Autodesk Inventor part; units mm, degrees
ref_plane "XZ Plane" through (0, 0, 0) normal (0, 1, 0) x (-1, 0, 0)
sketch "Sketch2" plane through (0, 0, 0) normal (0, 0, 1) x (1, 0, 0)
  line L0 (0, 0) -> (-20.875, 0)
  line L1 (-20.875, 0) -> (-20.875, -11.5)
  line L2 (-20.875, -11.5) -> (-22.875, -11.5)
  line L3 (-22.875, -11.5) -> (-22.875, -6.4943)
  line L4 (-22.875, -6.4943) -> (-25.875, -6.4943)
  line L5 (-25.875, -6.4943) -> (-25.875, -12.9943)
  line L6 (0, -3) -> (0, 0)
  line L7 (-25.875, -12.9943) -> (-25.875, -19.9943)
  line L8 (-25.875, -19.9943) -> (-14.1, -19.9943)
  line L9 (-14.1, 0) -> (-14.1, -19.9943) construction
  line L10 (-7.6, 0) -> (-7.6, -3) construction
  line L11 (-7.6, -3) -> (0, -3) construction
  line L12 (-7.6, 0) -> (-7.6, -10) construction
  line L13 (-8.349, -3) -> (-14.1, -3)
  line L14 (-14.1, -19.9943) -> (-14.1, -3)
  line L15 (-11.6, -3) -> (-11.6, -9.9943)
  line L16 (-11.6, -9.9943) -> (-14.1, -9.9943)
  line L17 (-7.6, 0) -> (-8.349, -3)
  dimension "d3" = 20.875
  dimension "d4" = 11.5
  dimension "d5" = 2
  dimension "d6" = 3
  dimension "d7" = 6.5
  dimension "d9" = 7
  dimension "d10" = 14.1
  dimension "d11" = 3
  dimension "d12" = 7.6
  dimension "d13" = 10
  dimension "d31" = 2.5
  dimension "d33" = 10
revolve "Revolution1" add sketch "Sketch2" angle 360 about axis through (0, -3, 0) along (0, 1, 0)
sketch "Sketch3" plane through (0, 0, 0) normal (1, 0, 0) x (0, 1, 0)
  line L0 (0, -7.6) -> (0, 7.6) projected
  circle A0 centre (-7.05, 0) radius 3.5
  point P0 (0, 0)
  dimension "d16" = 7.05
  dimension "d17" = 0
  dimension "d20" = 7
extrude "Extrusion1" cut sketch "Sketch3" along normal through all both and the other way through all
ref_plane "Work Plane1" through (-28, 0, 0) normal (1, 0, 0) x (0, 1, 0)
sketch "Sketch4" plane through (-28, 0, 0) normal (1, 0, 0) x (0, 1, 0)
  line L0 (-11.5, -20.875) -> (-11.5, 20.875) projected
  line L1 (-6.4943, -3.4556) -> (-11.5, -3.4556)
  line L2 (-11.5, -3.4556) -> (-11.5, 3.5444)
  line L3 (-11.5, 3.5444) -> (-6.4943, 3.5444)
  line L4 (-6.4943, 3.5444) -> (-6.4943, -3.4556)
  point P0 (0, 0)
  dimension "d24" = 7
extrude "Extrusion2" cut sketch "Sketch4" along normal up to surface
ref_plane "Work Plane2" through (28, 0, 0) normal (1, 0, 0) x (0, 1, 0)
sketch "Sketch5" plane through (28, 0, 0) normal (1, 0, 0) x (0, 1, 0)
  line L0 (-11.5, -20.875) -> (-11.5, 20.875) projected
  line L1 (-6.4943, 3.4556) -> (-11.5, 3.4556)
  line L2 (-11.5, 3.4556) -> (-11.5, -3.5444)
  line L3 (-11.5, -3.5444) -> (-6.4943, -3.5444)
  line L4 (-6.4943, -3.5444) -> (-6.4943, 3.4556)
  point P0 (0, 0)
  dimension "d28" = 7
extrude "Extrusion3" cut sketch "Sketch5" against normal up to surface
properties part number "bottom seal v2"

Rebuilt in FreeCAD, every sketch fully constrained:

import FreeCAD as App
import Part
import Sketcher
Q = App.Units.Quantity

doc = App.newDocument("Part")
params = doc.addObject("Spreadsheet::Sheet", "Params")
for row, (alias, value) in enumerate([
    ("sketch1_width", "2 mm"),
    ("sketch1_width2", "3 mm"),
    ("sketch1_height", "10 mm"),
    ("sketch1_width3", "2.5 mm"),
    ("sketch1_height2", "11.5 mm"),
    ("revolution_angle", "360 deg"),
    ("sketch2_diameter", "7 mm"),
    ("sketch3_height", "7 mm"),
    ("pocket2_length", "5.4013 mm"),
    ("sketch4_height", "7 mm"),
    ("pocket3_length", "5.4013 mm"),
], start=1):
    params.set(f"A{row}", alias)
    params.set(f"B{row}", "=" + value)
    params.setAlias(f"B{row}", alias)

body = doc.addObject("PartDesign::Body", "Body")

sketch1 = body.newObject("Sketcher::SketchObject", "Sketch")
sketch1.AttachmentSupport = (doc.getObject("XY_Plane"), [""])
sketch1.MapMode = "FlatFace"
sketch1.addGeometry(Part.LineSegment(App.Vector(-8.349, -3, 0), App.Vector(-7.6, 0, 0)), False)
sketch1.addGeometry(Part.LineSegment(App.Vector(-7.6, 0, 0), App.Vector(-20.875, 0, 0)), False)
sketch1.addGeometry(Part.LineSegment(App.Vector(-20.875, 0, 0), App.Vector(-20.875, -11.5, 0)), False)
sketch1.addGeometry(Part.LineSegment(App.Vector(-20.875, -11.5, 0), App.Vector(-22.875, -11.5, 0)), False)
sketch1.addGeometry(Part.LineSegment(App.Vector(-22.875, -11.5, 0), App.Vector(-22.875, -6.4943, 0)), False)
sketch1.addGeometry(Part.LineSegment(App.Vector(-22.875, -6.4943, 0), App.Vector(-25.875, -6.4943, 0)), False)
sketch1.addGeometry(Part.LineSegment(App.Vector(-25.875, -6.4943, 0), App.Vector(-25.875, -19.9943, 0)), False)
sketch1.addGeometry(Part.LineSegment(App.Vector(-25.875, -19.9943, 0), App.Vector(-14.1, -19.9943, 0)), False)
sketch1.addGeometry(Part.LineSegment(App.Vector(-14.1, -19.9943, 0), App.Vector(-14.1, -9.9943, 0)), False)
sketch1.addGeometry(Part.LineSegment(App.Vector(-14.1, -9.9943, 0), App.Vector(-11.6, -9.9943, 0)), False)
sketch1.addGeometry(Part.LineSegment(App.Vector(-11.6, -9.9943, 0), App.Vector(-11.6, -3, 0)), False)
sketch1.addGeometry(Part.LineSegment(App.Vector(-11.6, -3, 0), App.Vector(-8.349, -3, 0)), False)
sketch1.addConstraint(Sketcher.Constraint("Coincident", 0, 2, 1, 1))
sketch1.addConstraint(Sketcher.Constraint("Coincident", 1, 2, 2, 1))
sketch1.addConstraint(Sketcher.Constraint("Coincident", 2, 2, 3, 1))
sketch1.addConstraint(Sketcher.Constraint("Coincident", 3, 2, 4, 1))
sketch1.addConstraint(Sketcher.Constraint("Coincident", 4, 2, 5, 1))
sketch1.addConstraint(Sketcher.Constraint("Coincident", 5, 2, 6, 1))
sketch1.addConstraint(Sketcher.Constraint("Coincident", 6, 2, 7, 1))
sketch1.addConstraint(Sketcher.Constraint("Coincident", 7, 2, 8, 1))
sketch1.addConstraint(Sketcher.Constraint("Coincident", 8, 2, 9, 1))
sketch1.addConstraint(Sketcher.Constraint("Coincident", 9, 2, 10, 1))
sketch1.addConstraint(Sketcher.Constraint("Coincident", 10, 2, 11, 1))
sketch1.addConstraint(Sketcher.Constraint("Coincident", 11, 2, 0, 1))
sketch1.addConstraint(Sketcher.Constraint("Horizontal", 1))
sketch1.addConstraint(Sketcher.Constraint("Vertical", 2))
sketch1.addConstraint(Sketcher.Constraint("Horizontal", 3))
sketch1.addConstraint(Sketcher.Constraint("Vertical", 4))
sketch1.addConstraint(Sketcher.Constraint("Horizontal", 5))
sketch1.addConstraint(Sketcher.Constraint("Vertical", 6))
sketch1.addConstraint(Sketcher.Constraint("Horizontal", 7))
sketch1.addConstraint(Sketcher.Constraint("Vertical", 8))
sketch1.addConstraint(Sketcher.Constraint("Horizontal", 9))
sketch1.addConstraint(Sketcher.Constraint("Vertical", 10))
sketch1.addConstraint(Sketcher.Constraint("Horizontal", 11))
sketch1.addConstraint(Sketcher.Constraint("PointOnObject", 0, 2, -1))
sketch1.addConstraint(Sketcher.Constraint("DistanceX", 3, 2, 3, 1, Q("2 mm")))
sketch1.addConstraint(Sketcher.Constraint("DistanceX", 5, 2, 5, 1, Q("3 mm")))
sketch1.addConstraint(Sketcher.Constraint("DistanceY", 8, 1, 8, 2, Q("10 mm")))
sketch1.addConstraint(Sketcher.Constraint("DistanceX", 9, 1, 9, 2, Q("2.5 mm")))
sketch1.addConstraint(Sketcher.Constraint("DistanceY", 2, 2, 2, 1, Q("11.5 mm")))
sketch1.addConstraint(Sketcher.Constraint("DistanceY", 10, 2, -1, 1, Q("3 mm")))
sketch1.addConstraint(Sketcher.Constraint("DistanceX", 0, 2, -1, 1, Q("7.6 mm")))
sketch1.addConstraint(Sketcher.Constraint("DistanceX", 7, 2, -1, 1, Q("14.1 mm")))
sketch1.addConstraint(Sketcher.Constraint("DistanceY", 6, 2, 6, 1, Q("13.5 mm")))
sketch1.addConstraint(Sketcher.Constraint("DistanceX", 1, 2, -1, 1, Q("20.875 mm")))
sketch1.addConstraint(Sketcher.Constraint("DistanceX", 11, 1, 11, 2, Q("3.251 mm")))
sketch1.addConstraint(Sketcher.Constraint("DistanceY", 4, 1, 4, 2, Q("5.0057 mm")))
sketch1.setExpression("Constraints[24]", "Params.sketch1_width")
sketch1.setExpression("Constraints[25]", "Params.sketch1_width2")
sketch1.setExpression("Constraints[26]", "Params.sketch1_height")
sketch1.setExpression("Constraints[27]", "Params.sketch1_width3")
sketch1.setExpression("Constraints[28]", "Params.sketch1_height2")
revolution = body.newObject("PartDesign::Revolution", "Revolution")
revolution.Profile = sketch1
revolution.ReferenceAxis = (sketch1, ["V_Axis"])
revolution.setExpression("Angle", "Params.revolution_angle")

sketch2 = body.newObject("Sketcher::SketchObject", "Sketch001")
sketch2.AttachmentSupport = (doc.getObject("YZ_Plane"), [""])
sketch2.MapMode = "FlatFace"
sketch2.addGeometry(Part.Circle(App.Vector(-7.05, 0, 0), App.Vector(0, 0, 1), 3.5), False)
sketch2.addConstraint(Sketcher.Constraint("PointOnObject", 0, 3, -1))
sketch2.addConstraint(Sketcher.Constraint("Diameter", 0, Q("7 mm")))
sketch2.addConstraint(Sketcher.Constraint("DistanceX", 0, 3, -1, 1, Q("7.05 mm")))
sketch2.setExpression("Constraints[1]", "Params.sketch2_diameter")
pocket1 = body.newObject("PartDesign::Pocket", "Pocket")
pocket1.Profile = sketch2
pocket1.Type = "ThroughAll"
pocket1.Midplane = True

sketch3 = body.newObject("Sketcher::SketchObject", "Sketch002")
sketch3.AttachmentSupport = (doc.getObject("YZ_Plane"), [""])
sketch3.MapMode = "FlatFace"
sketch3.AttachmentOffset = App.Placement(App.Vector(0, 0, -28), App.Rotation())
sketch3.addGeometry(Part.LineSegment(App.Vector(-11.5, 3.5444, 0), App.Vector(-11.5, -3.4556, 0)), False)
sketch3.addGeometry(Part.LineSegment(App.Vector(-11.5, -3.4556, 0), App.Vector(-6.4943, -3.4556, 0)), False)
sketch3.addGeometry(Part.LineSegment(App.Vector(-6.4943, -3.4556, 0), App.Vector(-6.4943, 3.5444, 0)), False)
sketch3.addGeometry(Part.LineSegment(App.Vector(-6.4943, 3.5444, 0), App.Vector(-11.5, 3.5444, 0)), False)
sketch3.addConstraint(Sketcher.Constraint("Coincident", 0, 2, 1, 1))
sketch3.addConstraint(Sketcher.Constraint("Coincident", 1, 2, 2, 1))
sketch3.addConstraint(Sketcher.Constraint("Coincident", 2, 2, 3, 1))
sketch3.addConstraint(Sketcher.Constraint("Coincident", 3, 2, 0, 1))
sketch3.addConstraint(Sketcher.Constraint("Vertical", 0))
sketch3.addConstraint(Sketcher.Constraint("Horizontal", 1))
sketch3.addConstraint(Sketcher.Constraint("Vertical", 2))
sketch3.addConstraint(Sketcher.Constraint("Horizontal", 3))
sketch3.addConstraint(Sketcher.Constraint("DistanceY", 0, 2, 0, 1, Q("7 mm")))
sketch3.addConstraint(Sketcher.Constraint("DistanceX", 0, 2, -1, 1, Q("11.5 mm")))
sketch3.addConstraint(Sketcher.Constraint("DistanceX", 1, 1, 1, 2, Q("5.0057 mm")))
sketch3.addConstraint(Sketcher.Constraint("DistanceY", 0, 2, -1, 1, Q("3.4556 mm")))
sketch3.setExpression("Constraints[8]", "Params.sketch3_height")
pocket2 = body.newObject("PartDesign::Pocket", "Pocket001")
pocket2.Profile = sketch3
pocket2.setExpression("Length", "Params.pocket2_length")
pocket2.Reversed = True

sketch4 = body.newObject("Sketcher::SketchObject", "Sketch003")
sketch4.AttachmentSupport = (doc.getObject("YZ_Plane"), [""])
sketch4.MapMode = "FlatFace"
sketch4.AttachmentOffset = App.Placement(App.Vector(0, 0, 28), App.Rotation())
sketch4.addGeometry(Part.LineSegment(App.Vector(-11.5, 3.4556, 0), App.Vector(-11.5, -3.5444, 0)), False)
sketch4.addGeometry(Part.LineSegment(App.Vector(-11.5, -3.5444, 0), App.Vector(-6.4943, -3.5444, 0)), False)
sketch4.addGeometry(Part.LineSegment(App.Vector(-6.4943, -3.5444, 0), App.Vector(-6.4943, 3.4556, 0)), False)
sketch4.addGeometry(Part.LineSegment(App.Vector(-6.4943, 3.4556, 0), App.Vector(-11.5, 3.4556, 0)), False)
sketch4.addConstraint(Sketcher.Constraint("Coincident", 0, 2, 1, 1))
sketch4.addConstraint(Sketcher.Constraint("Coincident", 1, 2, 2, 1))
sketch4.addConstraint(Sketcher.Constraint("Coincident", 2, 2, 3, 1))
sketch4.addConstraint(Sketcher.Constraint("Coincident", 3, 2, 0, 1))
sketch4.addConstraint(Sketcher.Constraint("Vertical", 0))
sketch4.addConstraint(Sketcher.Constraint("Horizontal", 1))
sketch4.addConstraint(Sketcher.Constraint("Vertical", 2))
sketch4.addConstraint(Sketcher.Constraint("Horizontal", 3))
sketch4.addConstraint(Sketcher.Constraint("DistanceY", 0, 2, 0, 1, Q("7 mm")))
sketch4.addConstraint(Sketcher.Constraint("DistanceX", 0, 2, -1, 1, Q("11.5 mm")))
sketch4.addConstraint(Sketcher.Constraint("DistanceX", 1, 1, 1, 2, Q("5.0057 mm")))
sketch4.addConstraint(Sketcher.Constraint("DistanceY", 0, 2, -1, 1, Q("3.5444 mm")))
sketch4.setExpression("Constraints[8]", "Params.sketch4_height")
pocket3 = body.newObject("PartDesign::Pocket", "Pocket002")
pocket3.Profile = sketch4
pocket3.setExpression("Length", "Params.pocket3_length")

doc.recompute()
